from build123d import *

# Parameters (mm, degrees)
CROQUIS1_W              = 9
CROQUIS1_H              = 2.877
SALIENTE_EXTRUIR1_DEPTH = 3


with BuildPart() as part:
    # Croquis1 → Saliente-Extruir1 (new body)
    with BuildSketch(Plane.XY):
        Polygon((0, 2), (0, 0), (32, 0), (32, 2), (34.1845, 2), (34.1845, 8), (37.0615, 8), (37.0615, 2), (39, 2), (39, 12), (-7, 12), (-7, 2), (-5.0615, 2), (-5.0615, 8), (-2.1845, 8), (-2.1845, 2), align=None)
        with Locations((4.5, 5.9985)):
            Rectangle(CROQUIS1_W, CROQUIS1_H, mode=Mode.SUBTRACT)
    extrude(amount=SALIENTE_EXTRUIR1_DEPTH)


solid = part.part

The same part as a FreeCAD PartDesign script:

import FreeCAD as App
import Part
import Sketcher

V = App.Vector


def add_polygon(sketch, points):
    """Adds a closed chain of lines whose ends are joined by coincident constraints."""
    first, n = sketch.GeometryCount, len(points)
    for a, b in zip(points, points[1:] + points[:1]):
        sketch.addGeometry(Part.LineSegment(App.Vector(*a, 0), App.Vector(*b, 0)), False)
    for i in range(n):
        sketch.addConstraint(Sketcher.Constraint("Coincident", first + i, 2, first + (i + 1) % n, 1))

doc = App.newDocument("Part")
body = doc.addObject("PartDesign::Body", "Body")

# Sketch on XY plane
sketch1 = doc.addObject("Sketcher::SketchObject", "Sketch")
body.addObject(sketch1)
sketch1.AttachmentSupport = (doc.XY_Plane, [""])
sketch1.MapMode = "FlatFace"
add_polygon(sketch1, [(0, 2), (0, 0), (32, 0), (32, 2), (34.2, 2), (34.2, 8), (37.1, 8), (37.1, 2), (39, 2), (39, 12), (-7, 12), (-7, 2), (-5.1, 2), (-5.1, 8), (-2.2, 8), (-2.2, 2)])  # lines 0-15
add_polygon(sketch1, [(9, 4.6), (0, 4.6), (0, 7.4), (9, 7.4)])  # lines 16-19
sketch1.addConstraint([
    Sketcher.Constraint("Vertical", 0),
    Sketcher.Constraint("Horizontal", 1),
    Sketcher.Constraint("Vertical", 2),
    Sketcher.Constraint("Horizontal", 3),
    Sketcher.Constraint("Vertical", 4),
    Sketcher.Constraint("Horizontal", 5),
    Sketcher.Constraint("Vertical", 6),
    Sketcher.Constraint("Horizontal", 7),
    Sketcher.Constraint("Vertical", 8),
    Sketcher.Constraint("Horizontal", 9),
    Sketcher.Constraint("Vertical", 10),
    Sketcher.Constraint("Horizontal", 11),
    Sketcher.Constraint("Vertical", 12),
    Sketcher.Constraint("Horizontal", 13),
    Sketcher.Constraint("Vertical", 14),
    Sketcher.Constraint("Horizontal", 15),
    Sketcher.Constraint("Horizontal", 16),
    Sketcher.Constraint("Vertical", 17),
    Sketcher.Constraint("Horizontal", 18),
    Sketcher.Constraint("Vertical", 19),
    Sketcher.Constraint("Coincident", 0, 2, -1, 1),
    Sketcher.Constraint("PointOnObject", 16, 2, -2),
    Sketcher.Constraint("Horizontal", 3, 2, 6, 2),
    Sketcher.Constraint("Horizontal", 7, 2, 10, 2),
    Sketcher.Constraint("Horizontal", 5, 2, 12, 2),
    Sketcher.Constraint("Horizontal", 11, 2, 14, 2),
    Sketcher.Constraint("Equal", 7, 11),
    Sketcher.Constraint("Equal", 5, 13),
    Sketcher.Constraint("Equal", 3, 15),
    Sketcher.Constraint("Equal", 13, 17),
    Sketcher.Constraint("DistanceX", 1, 1, 1, 2, 32.0),
    Sketcher.Constraint("DistanceX", 9, 2, 9, 1, 46.0),
    Sketcher.Constraint("DistanceX", 16, 2, 16, 1, 9.0),
    Sketcher.Constraint("DistanceY", 0, 2, 0, 1, 2.0),
    Sketcher.Constraint("DistanceY", 4, 1, 4, 2, 6.0),
    Sketcher.Constraint("DistanceY", 8, 1, 8, 2, 10.0),
    Sketcher.Constraint("DistanceX", 5, 1, 5, 2, 2.877),
    Sketcher.Constraint("DistanceY", -1, 1, 16, 2, 4.56),
    Sketcher.Constraint("DistanceX", 3, 1, 3, 2, 2.1845),
])
pad1 = doc.addObject("PartDesign::Pad", "Pad")
body.addObject(pad1)
pad1.Profile = sketch1
pad1.Length = 3

doc.recompute()
